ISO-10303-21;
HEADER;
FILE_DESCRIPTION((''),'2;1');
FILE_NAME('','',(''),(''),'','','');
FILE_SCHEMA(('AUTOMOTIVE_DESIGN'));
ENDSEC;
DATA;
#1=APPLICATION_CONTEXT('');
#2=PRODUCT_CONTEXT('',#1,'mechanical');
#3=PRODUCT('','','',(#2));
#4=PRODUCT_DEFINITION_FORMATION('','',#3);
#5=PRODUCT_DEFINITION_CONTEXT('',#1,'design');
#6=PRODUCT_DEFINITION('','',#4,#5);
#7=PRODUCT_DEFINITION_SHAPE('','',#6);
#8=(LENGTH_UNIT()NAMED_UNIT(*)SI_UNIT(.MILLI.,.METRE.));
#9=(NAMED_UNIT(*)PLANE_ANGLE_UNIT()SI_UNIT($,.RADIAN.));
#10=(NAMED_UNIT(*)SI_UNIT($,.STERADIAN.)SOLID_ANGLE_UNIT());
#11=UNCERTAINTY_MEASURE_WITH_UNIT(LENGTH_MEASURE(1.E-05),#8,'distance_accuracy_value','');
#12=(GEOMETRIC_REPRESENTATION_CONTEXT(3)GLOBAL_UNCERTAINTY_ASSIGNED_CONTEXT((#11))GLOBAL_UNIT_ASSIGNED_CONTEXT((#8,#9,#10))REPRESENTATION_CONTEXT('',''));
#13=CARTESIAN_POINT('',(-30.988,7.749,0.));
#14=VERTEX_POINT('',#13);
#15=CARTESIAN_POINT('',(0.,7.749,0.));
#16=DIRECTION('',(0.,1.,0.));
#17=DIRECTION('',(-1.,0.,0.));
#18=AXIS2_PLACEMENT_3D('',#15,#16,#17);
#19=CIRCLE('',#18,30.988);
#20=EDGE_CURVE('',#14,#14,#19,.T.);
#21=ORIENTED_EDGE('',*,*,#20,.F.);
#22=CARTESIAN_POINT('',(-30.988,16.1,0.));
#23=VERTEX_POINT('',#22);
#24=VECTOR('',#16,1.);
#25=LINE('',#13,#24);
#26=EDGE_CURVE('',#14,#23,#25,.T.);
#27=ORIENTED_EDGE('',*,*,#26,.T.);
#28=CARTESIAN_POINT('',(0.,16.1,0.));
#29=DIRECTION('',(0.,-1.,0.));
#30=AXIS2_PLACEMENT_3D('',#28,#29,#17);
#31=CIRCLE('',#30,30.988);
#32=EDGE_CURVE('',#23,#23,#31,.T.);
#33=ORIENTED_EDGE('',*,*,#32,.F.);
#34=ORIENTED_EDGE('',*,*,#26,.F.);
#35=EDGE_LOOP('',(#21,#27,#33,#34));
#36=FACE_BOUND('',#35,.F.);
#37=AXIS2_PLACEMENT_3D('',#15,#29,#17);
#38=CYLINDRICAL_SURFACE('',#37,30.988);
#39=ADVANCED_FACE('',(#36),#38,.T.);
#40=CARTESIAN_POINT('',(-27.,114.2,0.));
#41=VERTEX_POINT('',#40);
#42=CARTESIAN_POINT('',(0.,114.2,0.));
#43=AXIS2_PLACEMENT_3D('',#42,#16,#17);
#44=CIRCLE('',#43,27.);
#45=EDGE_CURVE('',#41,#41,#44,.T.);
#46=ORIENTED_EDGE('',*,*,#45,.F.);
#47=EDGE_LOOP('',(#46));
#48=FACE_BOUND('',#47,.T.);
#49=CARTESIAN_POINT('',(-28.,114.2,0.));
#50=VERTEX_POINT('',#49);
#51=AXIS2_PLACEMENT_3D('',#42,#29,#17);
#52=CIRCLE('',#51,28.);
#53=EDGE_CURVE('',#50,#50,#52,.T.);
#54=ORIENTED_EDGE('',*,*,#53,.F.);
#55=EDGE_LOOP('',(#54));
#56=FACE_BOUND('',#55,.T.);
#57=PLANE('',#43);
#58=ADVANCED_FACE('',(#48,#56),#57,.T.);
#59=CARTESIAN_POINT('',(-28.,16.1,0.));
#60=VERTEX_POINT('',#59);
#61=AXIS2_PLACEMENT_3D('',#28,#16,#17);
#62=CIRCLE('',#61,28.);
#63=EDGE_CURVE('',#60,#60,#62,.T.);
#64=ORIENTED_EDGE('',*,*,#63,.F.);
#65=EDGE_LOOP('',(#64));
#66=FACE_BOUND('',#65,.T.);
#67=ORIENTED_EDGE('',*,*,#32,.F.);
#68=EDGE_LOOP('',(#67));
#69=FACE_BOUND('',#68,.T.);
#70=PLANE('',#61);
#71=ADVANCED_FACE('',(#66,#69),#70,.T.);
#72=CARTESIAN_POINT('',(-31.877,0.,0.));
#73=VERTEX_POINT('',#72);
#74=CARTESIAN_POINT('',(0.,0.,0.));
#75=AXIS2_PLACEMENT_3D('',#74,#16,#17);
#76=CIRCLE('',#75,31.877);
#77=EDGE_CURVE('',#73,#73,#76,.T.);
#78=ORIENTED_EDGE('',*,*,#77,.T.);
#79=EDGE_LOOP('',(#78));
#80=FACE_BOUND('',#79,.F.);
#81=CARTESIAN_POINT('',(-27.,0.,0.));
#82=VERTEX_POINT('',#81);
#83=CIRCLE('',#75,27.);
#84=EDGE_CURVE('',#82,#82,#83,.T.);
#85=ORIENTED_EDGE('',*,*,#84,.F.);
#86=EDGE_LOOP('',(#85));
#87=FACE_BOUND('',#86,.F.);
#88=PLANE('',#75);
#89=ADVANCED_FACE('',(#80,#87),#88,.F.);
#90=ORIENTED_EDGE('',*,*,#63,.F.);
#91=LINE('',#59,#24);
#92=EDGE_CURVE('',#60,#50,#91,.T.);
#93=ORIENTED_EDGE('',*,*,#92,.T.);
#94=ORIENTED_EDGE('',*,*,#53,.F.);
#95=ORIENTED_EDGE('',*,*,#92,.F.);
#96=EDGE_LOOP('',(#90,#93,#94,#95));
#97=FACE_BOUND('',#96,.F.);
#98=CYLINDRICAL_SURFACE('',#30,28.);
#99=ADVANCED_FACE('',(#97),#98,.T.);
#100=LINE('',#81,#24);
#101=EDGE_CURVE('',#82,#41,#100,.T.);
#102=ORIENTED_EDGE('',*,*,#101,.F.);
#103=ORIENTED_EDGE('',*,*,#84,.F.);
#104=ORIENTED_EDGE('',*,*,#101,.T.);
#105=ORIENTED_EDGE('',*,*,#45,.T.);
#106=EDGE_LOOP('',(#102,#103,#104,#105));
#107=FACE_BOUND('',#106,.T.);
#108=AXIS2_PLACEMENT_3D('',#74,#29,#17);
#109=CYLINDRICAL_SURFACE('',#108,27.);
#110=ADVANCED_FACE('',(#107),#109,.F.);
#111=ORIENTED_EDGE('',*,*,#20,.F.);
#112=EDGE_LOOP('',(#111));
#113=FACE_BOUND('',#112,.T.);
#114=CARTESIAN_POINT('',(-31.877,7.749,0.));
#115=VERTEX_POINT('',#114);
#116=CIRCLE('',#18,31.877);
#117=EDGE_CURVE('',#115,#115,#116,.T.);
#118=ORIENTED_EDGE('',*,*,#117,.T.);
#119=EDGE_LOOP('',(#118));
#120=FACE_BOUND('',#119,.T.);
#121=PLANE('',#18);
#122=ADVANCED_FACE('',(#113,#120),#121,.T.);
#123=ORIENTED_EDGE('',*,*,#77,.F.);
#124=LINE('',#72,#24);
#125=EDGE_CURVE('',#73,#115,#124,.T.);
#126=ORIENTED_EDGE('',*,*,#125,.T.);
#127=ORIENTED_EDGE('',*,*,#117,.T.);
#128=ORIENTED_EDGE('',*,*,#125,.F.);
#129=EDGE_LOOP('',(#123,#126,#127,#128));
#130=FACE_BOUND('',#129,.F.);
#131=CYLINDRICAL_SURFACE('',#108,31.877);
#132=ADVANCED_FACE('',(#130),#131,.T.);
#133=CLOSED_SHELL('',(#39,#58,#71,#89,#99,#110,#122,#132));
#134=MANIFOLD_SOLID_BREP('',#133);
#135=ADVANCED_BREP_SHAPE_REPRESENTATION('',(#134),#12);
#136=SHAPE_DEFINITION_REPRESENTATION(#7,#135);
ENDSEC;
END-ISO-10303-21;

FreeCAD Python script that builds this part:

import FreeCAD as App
import Part
import Sketcher
from FreeCAD import Vector
Q = App.Units.Quantity

doc = App.newDocument("Part")
params = doc.addObject("Spreadsheet::Sheet", "Params")
for row, (alias, value) in enumerate([
    ("sketch1_diameter", "54 mm"),
    ("pad1_length", "114.2 mm"),
    ("pocket1_length", "200 mm"),
    ("sketch3_diameter", "56 mm"),
    ("pocket2_length", "200 mm"),
], start=1):
    params.set(f"A{row}", alias)
    params.set(f"B{row}", "=" + value)
    params.setAlias(f"B{row}", alias)

body = doc.addObject("PartDesign::Body", "Body")

# Sketch on XZ plane
sketch1 = doc.addObject("Sketcher::SketchObject", "Sketch")
body.addObject(sketch1)
sketch1.AttachmentSupport = (doc.XZ_Plane, [""])
sketch1.MapMode = "FlatFace"
sketch1.addGeometry([
    Part.Circle(Vector(0, 0, 0), Vector(0, 0, 1), 31.877),
    Part.Circle(Vector(0, 0, 0), Vector(0, 0, 1), 27),
], False)
sketch1.addConstraint([
    Sketcher.Constraint("Coincident", 0, 3, -1, 1),
    Sketcher.Constraint("Coincident", 1, 3, -1, 1),
    Sketcher.Constraint("Diameter", 1, Q("54 mm")),
    Sketcher.Constraint("Diameter", 0, Q("63.754 mm")),
])
sketch1.setExpression("Constraints[2]", "Params.sketch1_diameter")
pad1 = doc.addObject("PartDesign::Pad", "Pad")
body.addObject(pad1)
pad1.Profile = sketch1
pad1.setExpression("Length", "Params.pad1_length")
pad1.Reversed = True

# Sketch on XZ plane
sketch2 = doc.addObject("Sketcher::SketchObject", "Sketch001")
body.addObject(sketch2)
sketch2.AttachmentSupport = (doc.XZ_Plane, [""])
sketch2.MapMode = "FlatFace"
sketch2.AttachmentOffset = App.Placement(Vector(0, 0, -7.749), App.Rotation())
sketch2.addGeometry([
    Part.Circle(Vector(0, 0, 0), Vector(0, 0, 1), 31.877),
    Part.Circle(Vector(0, 0, 0), Vector(0, 0, 1), 30.988),
], False)
sketch2.addConstraint([
    Sketcher.Constraint("Coincident", 0, 3, -1, 1),
    Sketcher.Constraint("Coincident", 1, 3, -1, 1),
    Sketcher.Constraint("Diameter", 1, Q("61.976 mm")),
    Sketcher.Constraint("Diameter", 0, Q("63.754 mm")),
])
pocket1 = doc.addObject("PartDesign::Pocket", "Pocket")
body.addObject(pocket1)
pocket1.Profile = sketch2
pocket1.setExpression("Length", "Params.pocket1_length")

# Sketch on XZ plane
sketch3 = doc.addObject("Sketcher::SketchObject", "Sketch002")
body.addObject(sketch3)
sketch3.AttachmentSupport = (doc.XZ_Plane, [""])
sketch3.MapMode = "FlatFace"
sketch3.AttachmentOffset = App.Placement(Vector(0, 0, -16.1), App.Rotation())
sketch3.addGeometry([
    Part.Circle(Vector(0, 0, 0), Vector(0, 0, 1), 31.5514),
    Part.Circle(Vector(0, 0, 0), Vector(0, 0, 1), 28),
], False)
sketch3.addConstraint([
    Sketcher.Constraint("Coincident", 0, 3, -1, 1),
    Sketcher.Constraint("Coincident", 1, 3, -1, 1),
    Sketcher.Constraint("Diameter", 1, Q("56 mm")),
    Sketcher.Constraint("Diameter", 0, Q("63.1028 mm")),
])
sketch3.setExpression("Constraints[2]", "Params.sketch3_diameter")
pocket2 = doc.addObject("PartDesign::Pocket", "Pocket001")
body.addObject(pocket2)
pocket2.Profile = sketch3
pocket2.setExpression("Length", "Params.pocket2_length")

doc.recompute()
